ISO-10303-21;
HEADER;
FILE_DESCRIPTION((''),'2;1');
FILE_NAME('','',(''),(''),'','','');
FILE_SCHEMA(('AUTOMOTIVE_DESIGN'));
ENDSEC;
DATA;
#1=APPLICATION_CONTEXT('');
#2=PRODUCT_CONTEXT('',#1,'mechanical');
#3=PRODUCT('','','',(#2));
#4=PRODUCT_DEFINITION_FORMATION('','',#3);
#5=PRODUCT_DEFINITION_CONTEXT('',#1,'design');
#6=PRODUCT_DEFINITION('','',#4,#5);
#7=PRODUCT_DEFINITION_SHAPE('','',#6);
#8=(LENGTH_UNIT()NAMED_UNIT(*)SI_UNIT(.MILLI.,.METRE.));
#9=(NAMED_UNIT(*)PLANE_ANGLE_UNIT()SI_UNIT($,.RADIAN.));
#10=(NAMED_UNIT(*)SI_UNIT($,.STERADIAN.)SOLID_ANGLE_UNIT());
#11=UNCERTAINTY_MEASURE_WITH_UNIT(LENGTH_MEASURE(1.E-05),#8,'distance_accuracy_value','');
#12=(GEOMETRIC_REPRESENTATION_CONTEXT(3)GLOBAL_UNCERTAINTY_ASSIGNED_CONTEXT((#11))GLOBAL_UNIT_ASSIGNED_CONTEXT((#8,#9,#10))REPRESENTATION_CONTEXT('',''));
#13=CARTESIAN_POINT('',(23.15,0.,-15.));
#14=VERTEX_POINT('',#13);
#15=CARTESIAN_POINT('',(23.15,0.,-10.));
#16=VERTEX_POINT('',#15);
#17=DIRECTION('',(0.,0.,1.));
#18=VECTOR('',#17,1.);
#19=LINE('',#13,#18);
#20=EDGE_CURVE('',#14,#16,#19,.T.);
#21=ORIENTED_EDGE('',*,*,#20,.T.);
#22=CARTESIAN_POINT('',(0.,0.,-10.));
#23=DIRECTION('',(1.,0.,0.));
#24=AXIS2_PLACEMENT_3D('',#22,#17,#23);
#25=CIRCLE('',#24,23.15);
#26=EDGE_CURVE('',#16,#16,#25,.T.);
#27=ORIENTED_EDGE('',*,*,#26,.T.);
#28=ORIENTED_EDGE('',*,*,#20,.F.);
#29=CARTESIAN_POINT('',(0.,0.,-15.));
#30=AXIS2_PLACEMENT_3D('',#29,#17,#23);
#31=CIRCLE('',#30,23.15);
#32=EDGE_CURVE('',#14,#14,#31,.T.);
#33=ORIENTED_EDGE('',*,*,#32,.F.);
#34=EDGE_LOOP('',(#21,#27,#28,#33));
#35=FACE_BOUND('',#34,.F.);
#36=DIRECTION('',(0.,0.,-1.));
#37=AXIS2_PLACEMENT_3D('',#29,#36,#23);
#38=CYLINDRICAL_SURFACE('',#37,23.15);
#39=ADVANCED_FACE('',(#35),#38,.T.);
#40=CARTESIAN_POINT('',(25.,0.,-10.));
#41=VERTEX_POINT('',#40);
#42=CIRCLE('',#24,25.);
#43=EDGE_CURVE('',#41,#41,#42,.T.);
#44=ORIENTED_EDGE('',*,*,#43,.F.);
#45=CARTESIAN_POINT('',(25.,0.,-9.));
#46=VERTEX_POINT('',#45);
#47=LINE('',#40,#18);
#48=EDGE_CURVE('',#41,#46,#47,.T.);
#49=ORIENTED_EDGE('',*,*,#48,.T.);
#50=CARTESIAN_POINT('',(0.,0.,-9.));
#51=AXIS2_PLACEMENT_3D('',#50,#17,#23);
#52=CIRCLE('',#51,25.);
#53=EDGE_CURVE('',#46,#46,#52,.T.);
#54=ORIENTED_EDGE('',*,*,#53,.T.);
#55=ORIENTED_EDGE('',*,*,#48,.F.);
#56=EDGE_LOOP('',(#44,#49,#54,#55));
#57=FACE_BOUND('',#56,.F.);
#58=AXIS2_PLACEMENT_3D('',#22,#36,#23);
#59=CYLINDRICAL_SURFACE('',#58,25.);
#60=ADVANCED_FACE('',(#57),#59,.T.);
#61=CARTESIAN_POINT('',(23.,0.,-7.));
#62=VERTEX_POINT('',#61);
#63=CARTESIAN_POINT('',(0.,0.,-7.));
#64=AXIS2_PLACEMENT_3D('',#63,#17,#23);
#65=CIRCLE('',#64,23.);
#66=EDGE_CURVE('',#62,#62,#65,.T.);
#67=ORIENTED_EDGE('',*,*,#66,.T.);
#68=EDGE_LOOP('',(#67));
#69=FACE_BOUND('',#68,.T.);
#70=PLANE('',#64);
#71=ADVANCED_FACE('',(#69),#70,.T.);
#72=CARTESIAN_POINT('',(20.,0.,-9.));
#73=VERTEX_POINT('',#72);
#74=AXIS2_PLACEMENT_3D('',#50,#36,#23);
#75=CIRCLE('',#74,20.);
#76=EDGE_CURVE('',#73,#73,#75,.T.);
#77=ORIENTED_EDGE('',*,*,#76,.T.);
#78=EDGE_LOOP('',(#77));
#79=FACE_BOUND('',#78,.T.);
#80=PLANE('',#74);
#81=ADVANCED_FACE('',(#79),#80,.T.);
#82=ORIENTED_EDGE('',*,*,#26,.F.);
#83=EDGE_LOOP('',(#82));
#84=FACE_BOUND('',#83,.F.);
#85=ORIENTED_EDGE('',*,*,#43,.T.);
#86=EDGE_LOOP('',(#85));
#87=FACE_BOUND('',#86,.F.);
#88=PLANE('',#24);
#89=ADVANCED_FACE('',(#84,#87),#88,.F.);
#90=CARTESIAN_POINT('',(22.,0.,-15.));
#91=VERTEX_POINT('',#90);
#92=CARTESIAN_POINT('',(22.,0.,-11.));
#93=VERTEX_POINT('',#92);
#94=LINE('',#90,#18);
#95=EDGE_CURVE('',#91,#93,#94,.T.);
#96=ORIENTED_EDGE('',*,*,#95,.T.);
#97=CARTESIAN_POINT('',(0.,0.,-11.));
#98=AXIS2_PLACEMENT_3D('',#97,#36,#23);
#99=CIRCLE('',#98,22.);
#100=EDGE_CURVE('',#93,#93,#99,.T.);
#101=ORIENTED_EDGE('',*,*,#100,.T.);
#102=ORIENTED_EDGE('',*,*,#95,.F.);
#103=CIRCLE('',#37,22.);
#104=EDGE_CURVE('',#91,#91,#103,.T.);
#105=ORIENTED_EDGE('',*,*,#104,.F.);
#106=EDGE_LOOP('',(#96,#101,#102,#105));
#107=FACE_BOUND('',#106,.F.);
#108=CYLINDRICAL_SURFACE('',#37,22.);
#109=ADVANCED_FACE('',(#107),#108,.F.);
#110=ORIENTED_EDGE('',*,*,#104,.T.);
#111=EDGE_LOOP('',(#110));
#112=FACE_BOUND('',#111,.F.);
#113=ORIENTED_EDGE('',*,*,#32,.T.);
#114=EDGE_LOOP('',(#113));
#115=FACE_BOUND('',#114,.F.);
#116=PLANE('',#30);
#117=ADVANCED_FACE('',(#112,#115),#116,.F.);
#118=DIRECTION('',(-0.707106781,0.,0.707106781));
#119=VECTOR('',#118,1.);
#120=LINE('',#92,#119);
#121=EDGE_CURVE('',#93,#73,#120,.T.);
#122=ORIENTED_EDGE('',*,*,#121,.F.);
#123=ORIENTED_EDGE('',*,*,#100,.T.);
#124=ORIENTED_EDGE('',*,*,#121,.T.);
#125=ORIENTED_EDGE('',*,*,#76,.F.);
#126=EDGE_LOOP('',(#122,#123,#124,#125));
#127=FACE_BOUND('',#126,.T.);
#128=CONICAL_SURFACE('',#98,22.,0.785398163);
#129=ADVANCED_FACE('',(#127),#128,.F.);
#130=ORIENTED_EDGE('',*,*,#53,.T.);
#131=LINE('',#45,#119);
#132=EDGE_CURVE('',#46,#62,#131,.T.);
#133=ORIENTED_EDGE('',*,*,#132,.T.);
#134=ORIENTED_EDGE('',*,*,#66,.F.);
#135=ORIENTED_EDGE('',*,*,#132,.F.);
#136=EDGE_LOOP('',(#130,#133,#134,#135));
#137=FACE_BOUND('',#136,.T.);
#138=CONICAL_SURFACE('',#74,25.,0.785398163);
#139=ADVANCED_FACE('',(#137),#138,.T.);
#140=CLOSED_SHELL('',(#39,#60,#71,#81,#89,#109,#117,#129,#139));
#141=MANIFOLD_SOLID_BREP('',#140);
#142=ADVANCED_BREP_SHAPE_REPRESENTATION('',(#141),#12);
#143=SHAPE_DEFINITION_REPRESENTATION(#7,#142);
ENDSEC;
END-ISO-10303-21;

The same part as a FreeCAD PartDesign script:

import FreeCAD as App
import Part
import Sketcher
from FreeCAD import Vector


def edges_at(feature, points):
    """Names of the edges that pass closest to the given points."""
    edges = feature.Shape.Edges
    near = lambda p: min(range(len(edges)), key=lambda i: edges[i].distToShape(Part.Vertex(*p))[0])
    return sorted({f"Edge{near(p) + 1}" for p in points})

doc = App.newDocument("Part")
body = doc.addObject("PartDesign::Body", "Body")

# Sketch on XY plane
sketch1 = body.newObject("Sketcher::SketchObject", "Sketch")
sketch1.AttachmentSupport = (doc.getObject("XY_Plane"), [""])
sketch1.MapMode = "FlatFace"
sketch1.addGeometry(Part.Circle(Vector(0, 0, 0), Vector(0, 0, 1), 23), False)
sketch1.addConstraint([
    Sketcher.Constraint("Coincident", 0, 3, -1, 1),
    Sketcher.Constraint("Diameter", 0, 46.3),
])
pad1 = body.newObject("PartDesign::Pad", "Pad")
pad1.Profile = sketch1
pad1.Length = 5

# Sketch on XY plane
sketch2 = body.newObject("Sketcher::SketchObject", "Sketch001")
sketch2.AttachmentSupport = (doc.getObject("XY_Plane"), [""])
sketch2.MapMode = "FlatFace"
sketch2.AttachmentOffset = App.Placement(Vector(0, 0, 5), App.Rotation())
sketch2.addGeometry(Part.Circle(Vector(0, 0, 0), Vector(0, 0, 1), 25), False)
sketch2.addConstraint([
    Sketcher.Constraint("Coincident", 0, 3, -1, 1),
    Sketcher.Constraint("Diameter", 0, 50.0),
])
pad2 = body.newObject("PartDesign::Pad", "Pad001")
pad2.Profile = sketch2
pad2.Length = 3
doc.recompute()

chamfer = body.newObject("PartDesign::Chamfer", "Chamfer")
chamfer.Base = (pad2, edges_at(pad2, [(-25, 0, 8)]))
chamfer.Size = 2

# Sketch on XY plane
sketch3 = body.newObject("Sketcher::SketchObject", "Sketch002")
sketch3.AttachmentSupport = (doc.getObject("XY_Plane"), [""])
sketch3.MapMode = "FlatFace"
sketch3.addGeometry(Part.Circle(Vector(0, 0, 0), Vector(0, 0, 1), 22), False)
sketch3.addConstraint([
    Sketcher.Constraint("Coincident", 0, 3, -1, 1),
    Sketcher.Constraint("Diameter", 0, 44.0),
])
pocket1 = body.newObject("PartDesign::Pocket", "Pocket")
pocket1.Profile = sketch3
pocket1.Length = 6
pocket1.Reversed = True
doc.recompute()

chamfer2 = body.newObject("PartDesign::Chamfer", "Chamfer001")
chamfer2.Base = (pocket1, edges_at(pocket1, [(-22, 0, 6)]))
chamfer2.Size = 2
body2 = doc.addObject("PartDesign::Body", "Body001")
doc.recompute()

body.Placement = App.Placement(Vector(0, 0, -15), App.Rotation(Vector(0, 0, 1), 0))
boolean = body2.newObject("PartDesign::Boolean", "Boolean")
boolean.Type = "Fuse"
boolean.addObjects([body])

doc.recompute()
